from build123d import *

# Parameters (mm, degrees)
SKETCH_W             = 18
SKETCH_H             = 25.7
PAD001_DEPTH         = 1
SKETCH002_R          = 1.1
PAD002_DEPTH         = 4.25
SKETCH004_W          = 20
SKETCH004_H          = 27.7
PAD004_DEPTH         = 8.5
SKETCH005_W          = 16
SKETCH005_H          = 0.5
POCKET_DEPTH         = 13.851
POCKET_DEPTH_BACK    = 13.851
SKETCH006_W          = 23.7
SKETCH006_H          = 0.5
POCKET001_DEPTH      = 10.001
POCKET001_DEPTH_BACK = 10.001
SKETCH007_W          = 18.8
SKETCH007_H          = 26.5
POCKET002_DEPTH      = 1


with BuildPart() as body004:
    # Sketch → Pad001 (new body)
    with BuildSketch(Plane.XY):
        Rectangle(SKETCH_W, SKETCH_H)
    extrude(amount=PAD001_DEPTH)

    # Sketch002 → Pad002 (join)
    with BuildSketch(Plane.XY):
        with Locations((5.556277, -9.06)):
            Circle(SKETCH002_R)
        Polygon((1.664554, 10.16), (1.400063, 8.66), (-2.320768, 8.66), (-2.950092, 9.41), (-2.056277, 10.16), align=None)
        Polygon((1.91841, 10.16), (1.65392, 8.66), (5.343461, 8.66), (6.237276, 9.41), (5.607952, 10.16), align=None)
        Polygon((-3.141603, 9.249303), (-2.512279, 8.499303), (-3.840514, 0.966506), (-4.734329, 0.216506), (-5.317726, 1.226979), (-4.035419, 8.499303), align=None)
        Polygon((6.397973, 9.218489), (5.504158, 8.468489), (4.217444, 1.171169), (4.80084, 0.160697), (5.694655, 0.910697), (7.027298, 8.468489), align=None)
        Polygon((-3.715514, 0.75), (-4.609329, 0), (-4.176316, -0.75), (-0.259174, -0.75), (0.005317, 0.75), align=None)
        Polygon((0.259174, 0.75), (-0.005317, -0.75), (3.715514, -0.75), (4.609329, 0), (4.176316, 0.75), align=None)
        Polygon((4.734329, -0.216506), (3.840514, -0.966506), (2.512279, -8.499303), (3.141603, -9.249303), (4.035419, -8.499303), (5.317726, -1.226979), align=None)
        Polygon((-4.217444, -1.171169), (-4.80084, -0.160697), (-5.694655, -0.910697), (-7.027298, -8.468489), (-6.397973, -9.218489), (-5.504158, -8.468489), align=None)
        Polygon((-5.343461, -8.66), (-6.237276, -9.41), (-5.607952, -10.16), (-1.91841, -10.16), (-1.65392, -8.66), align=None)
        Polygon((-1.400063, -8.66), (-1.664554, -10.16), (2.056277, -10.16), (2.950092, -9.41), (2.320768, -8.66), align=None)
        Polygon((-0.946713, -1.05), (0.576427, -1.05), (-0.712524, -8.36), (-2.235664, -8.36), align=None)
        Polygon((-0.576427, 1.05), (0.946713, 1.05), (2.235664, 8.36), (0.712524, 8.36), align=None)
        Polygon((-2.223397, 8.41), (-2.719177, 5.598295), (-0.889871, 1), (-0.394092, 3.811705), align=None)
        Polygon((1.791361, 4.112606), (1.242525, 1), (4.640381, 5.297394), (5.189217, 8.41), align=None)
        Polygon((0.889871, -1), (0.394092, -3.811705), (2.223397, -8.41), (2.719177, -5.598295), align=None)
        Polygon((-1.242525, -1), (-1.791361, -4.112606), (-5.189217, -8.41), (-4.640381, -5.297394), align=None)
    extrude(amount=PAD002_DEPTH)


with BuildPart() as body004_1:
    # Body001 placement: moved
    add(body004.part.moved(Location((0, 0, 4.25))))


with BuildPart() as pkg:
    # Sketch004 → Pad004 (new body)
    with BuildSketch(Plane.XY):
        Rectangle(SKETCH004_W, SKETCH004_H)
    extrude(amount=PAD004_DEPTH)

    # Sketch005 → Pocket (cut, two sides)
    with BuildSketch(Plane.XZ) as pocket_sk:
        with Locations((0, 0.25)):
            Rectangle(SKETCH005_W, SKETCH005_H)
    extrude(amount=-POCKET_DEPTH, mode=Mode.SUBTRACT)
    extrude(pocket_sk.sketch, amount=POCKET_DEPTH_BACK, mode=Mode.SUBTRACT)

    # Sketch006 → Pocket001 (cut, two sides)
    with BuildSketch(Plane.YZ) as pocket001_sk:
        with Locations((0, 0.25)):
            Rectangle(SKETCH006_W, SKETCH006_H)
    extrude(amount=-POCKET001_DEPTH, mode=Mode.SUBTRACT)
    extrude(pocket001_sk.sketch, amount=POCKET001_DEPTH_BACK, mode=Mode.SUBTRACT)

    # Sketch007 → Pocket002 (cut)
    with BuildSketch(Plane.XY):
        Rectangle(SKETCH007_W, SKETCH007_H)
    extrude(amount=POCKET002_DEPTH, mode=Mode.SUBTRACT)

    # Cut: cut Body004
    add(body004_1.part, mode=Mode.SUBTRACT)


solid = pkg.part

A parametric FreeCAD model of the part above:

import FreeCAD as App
import Part
import Sketcher
from FreeCAD import Vector
Q = App.Units.Quantity

doc = App.newDocument("Part")
body = doc.addObject("PartDesign::Body", "Body")

sketch1 = doc.addObject("Sketcher::SketchObject", "Sketch")
body.addObject(sketch1)
sketch1.AttachmentSupport = (doc.XY_Plane, [""])
sketch1.MapMode = "FlatFace"
sketch1.addGeometry(Part.LineSegment(Vector(-9, 13, 0), Vector(-9, -13, 0)), False)
sketch1.addGeometry(Part.LineSegment(Vector(-9, -13, 0), Vector(9, -13, 0)), False)
sketch1.addGeometry(Part.LineSegment(Vector(9, -13, 0), Vector(9, 13, 0)), False)
sketch1.addGeometry(Part.LineSegment(Vector(9, 13, 0), Vector(-9, 13, 0)), False)
sketch1.addConstraint(Sketcher.Constraint("Coincident", 0, 2, 1, 1))
sketch1.addConstraint(Sketcher.Constraint("Coincident", 1, 2, 2, 1))
sketch1.addConstraint(Sketcher.Constraint("Coincident", 2, 2, 3, 1))
sketch1.addConstraint(Sketcher.Constraint("Coincident", 3, 2, 0, 1))
sketch1.addConstraint(Sketcher.Constraint("Vertical", 0))
sketch1.addConstraint(Sketcher.Constraint("Horizontal", 1))
sketch1.addConstraint(Sketcher.Constraint("Vertical", 2))
sketch1.addConstraint(Sketcher.Constraint("Horizontal", 3))
sketch1.addConstraint(Sketcher.Constraint("Symmetric", 0, 2, 2, 2, -1, 1))
sketch1.addConstraint(Sketcher.Constraint("DistanceX", 1, 1, 1, 2, Q("18 mm")))
sketch1.addConstraint(Sketcher.Constraint("DistanceY", 0, 2, 0, 1, Q("25.7 mm")))
pad1 = doc.addObject("PartDesign::Pad", "Pad")
body.addObject(pad1)
pad1.Profile = sketch1
pad1.Length = 1

sketch2 = doc.addObject("Sketcher::SketchObject", "Sketch001")
body.addObject(sketch2)
sketch2.AttachmentSupport = (doc.XY_Plane, [""])
sketch2.MapMode = "FlatFace"
sketch2.addGeometry(Part.Circle(Vector(5.6, -9.1, 0), Vector(0, 0, 1), 1.1), False)
sketch2.addGeometry(Part.LineSegment(Vector(1.4, 8.7, 0), Vector(1.7, 10.2, 0)), False)
sketch2.addGeometry(Part.LineSegment(Vector(1.7, 10.2, 0), Vector(-2.1, 10.2, 0)), False)
sketch2.addGeometry(Part.LineSegment(Vector(-2.1, 10.2, 0), Vector(-3, 9.4, 0)), False)
sketch2.addGeometry(Part.LineSegment(Vector(-3, 9.4, 0), Vector(-2.3, 8.7, 0)), False)
sketch2.addGeometry(Part.LineSegment(Vector(-2.3, 8.7, 0), Vector(1.4, 8.7, 0)), False)
sketch2.addGeometry(Part.LineSegment(Vector(1.9, 10.2, 0), Vector(1.7, 8.7, 0)), False)
sketch2.addGeometry(Part.LineSegment(Vector(1.7, 8.7, 0), Vector(5.3, 8.7, 0)), False)
sketch2.addGeometry(Part.LineSegment(Vector(5.3, 8.7, 0), Vector(6.2, 9.4, 0)), False)
sketch2.addGeometry(Part.LineSegment(Vector(6.2, 9.4, 0), Vector(5.6, 10.2, 0)), False)
sketch2.addGeometry(Part.LineSegment(Vector(5.6, 10.2, 0), Vector(1.9, 10.2, 0)), False)
sketch2.addGeometry(Part.LineSegment(Vector(-2.5, 8.5, 0), Vector(-3.1, 9.2, 0)), False)
sketch2.addGeometry(Part.LineSegment(Vector(-3.1, 9.2, 0), Vector(-4, 8.5, 0)), False)
sketch2.addGeometry(Part.LineSegment(Vector(-4, 8.5, 0), Vector(-5.3, 1.2, 0)), False)
sketch2.addGeometry(Part.LineSegment(Vector(-5.3, 1.2, 0), Vector(-4.7, 0.2, 0)), False)
sketch2.addGeometry(Part.LineSegment(Vector(-4.7, 0.2, 0), Vector(-3.8, 1, 0)), False)
sketch2.addGeometry(Part.LineSegment(Vector(-3.8, 1, 0), Vector(-2.5, 8.5, 0)), False)
sketch2.addGeometry(Part.LineSegment(Vector(6.4, 9.2, 0), Vector(5.5, 8.5, 0)), False)
sketch2.addGeometry(Part.LineSegment(Vector(5.5, 8.5, 0), Vector(4.2, 1.2, 0)), False)
sketch2.addGeometry(Part.LineSegment(Vector(4.2, 1.2, 0), Vector(4.8, 0.2, 0)), False)
sketch2.addGeometry(Part.LineSegment(Vector(4.8, 0.2, 0), Vector(5.7, 0.9, 0)), False)
sketch2.addGeometry(Part.LineSegment(Vector(5.7, 0.9, 0), Vector(7, 8.5, 0)), False)
sketch2.addGeometry(Part.LineSegment(Vector(7, 8.5, 0), Vector(6.4, 9.2, 0)), False)
sketch2.addGeometry(Part.LineSegment(Vector(-3.7, 0.8, 0), Vector(-4.6, 0, 0)), False)
sketch2.addGeometry(Part.LineSegment(Vector(-4.6, 0, 0), Vector(-4.2, -0.8, 0)), False)
sketch2.addGeometry(Part.LineSegment(Vector(-4.2, -0.8, 0), Vector(-0.3, -0.8, 0)), False)
sketch2.addGeometry(Part.LineSegment(Vector(-0.3, -0.8, 0), Vector(0, 0.8, 0)), False)
sketch2.addGeometry(Part.LineSegment(Vector(0, 0.8, 0), Vector(-3.7, 0.8, 0)), False)
sketch2.addGeometry(Part.LineSegment(Vector(0.3, 0.8, 0), Vector(0, -0.8, 0)), False)
sketch2.addGeometry(Part.LineSegment(Vector(0, -0.8, 0), Vector(3.7, -0.8, 0)), False)
sketch2.addGeometry(Part.LineSegment(Vector(3.7, -0.8, 0), Vector(4.6, 0, 0)), False)
sketch2.addGeometry(Part.LineSegment(Vector(4.6, 0, 0), Vector(4.2, 0.8, 0)), False)
sketch2.addGeometry(Part.LineSegment(Vector(4.2, 0.8, 0), Vector(0.3, 0.8, 0)), False)
sketch2.addGeometry(Part.LineSegment(Vector(4.7, -0.2, 0), Vector(3.8, -1, 0)), False)
sketch2.addGeometry(Part.LineSegment(Vector(3.8, -1, 0), Vector(2.5, -8.5, 0)), False)
sketch2.addGeometry(Part.LineSegment(Vector(2.5, -8.5, 0), Vector(3.1, -9.2, 0)), False)
sketch2.addGeometry(Part.LineSegment(Vector(3.1, -9.2, 0), Vector(4, -8.5, 0)), False)
sketch2.addGeometry(Part.LineSegment(Vector(4, -8.5, 0), Vector(5.3, -1.2, 0)), False)
sketch2.addGeometry(Part.LineSegment(Vector(5.3, -1.2, 0), Vector(4.7, -0.2, 0)), False)
sketch2.addGeometry(Part.LineSegment(Vector(-4.2, -1.2, 0), Vector(-4.8, -0.2, 0)), False)
sketch2.addGeometry(Part.LineSegment(Vector(-4.8, -0.2, 0), Vector(-5.7, -0.9, 0)), False)
sketch2.addGeometry(Part.LineSegment(Vector(-5.7, -0.9, 0), Vector(-7, -8.5, 0)), False)
sketch2.addGeometry(Part.LineSegment(Vector(-7, -8.5, 0), Vector(-6.4, -9.2, 0)), False)
sketch2.addGeometry(Part.LineSegment(Vector(-6.4, -9.2, 0), Vector(-5.5, -8.5, 0)), False)
sketch2.addGeometry(Part.LineSegment(Vector(-5.5, -8.5, 0), Vector(-4.2, -1.2, 0)), False)
sketch2.addGeometry(Part.LineSegment(Vector(-5.3, -8.7, 0), Vector(-6.2, -9.4, 0)), False)
sketch2.addGeometry(Part.LineSegment(Vector(-6.2, -9.4, 0), Vector(-5.6, -10.2, 0)), False)
sketch2.addGeometry(Part.LineSegment(Vector(-5.6, -10.2, 0), Vector(-1.9, -10.2, 0)), False)
sketch2.addGeometry(Part.LineSegment(Vector(-1.9, -10.2, 0), Vector(-1.7, -8.7, 0)), False)
sketch2.addGeometry(Part.LineSegment(Vector(-1.7, -8.7, 0), Vector(-5.3, -8.7, 0)), False)
sketch2.addGeometry(Part.LineSegment(Vector(-1.4, -8.7, 0), Vector(-1.7, -10.2, 0)), False)
sketch2.addGeometry(Part.LineSegment(Vector(-1.7, -10.2, 0), Vector(2.1, -10.2, 0)), False)
sketch2.addGeometry(Part.LineSegment(Vector(2.1, -10.2, 0), Vector(3, -9.4, 0)), False)
sketch2.addGeometry(Part.LineSegment(Vector(3, -9.4, 0), Vector(2.3, -8.7, 0)), False)
sketch2.addGeometry(Part.LineSegment(Vector(2.3, -8.7, 0), Vector(-1.4, -8.7, 0)), False)
sketch2.addGeometry(Part.LineSegment(Vector(0.6, -1.1, 0), Vector(-0.9, -1.1, 0)), False)
sketch2.addGeometry(Part.LineSegment(Vector(-0.9, -1.1, 0), Vector(-2.2, -8.4, 0)), False)
sketch2.addGeometry(Part.LineSegment(Vector(-2.2, -8.4, 0), Vector(-0.7, -8.4, 0)), False)
sketch2.addGeometry(Part.LineSegment(Vector(-0.7, -8.4, 0), Vector(0.6, -1.1, 0)), False)
sketch2.addGeometry(Part.LineSegment(Vector(-0.6, 1.1, 0), Vector(0.9, 1.1, 0)), False)
sketch2.addGeometry(Part.LineSegment(Vector(0.9, 1.1, 0), Vector(2.2, 8.4, 0)), False)
sketch2.addGeometry(Part.LineSegment(Vector(2.2, 8.4, 0), Vector(0.7, 8.4, 0)), False)
sketch2.addGeometry(Part.LineSegment(Vector(0.7, 8.4, 0), Vector(-0.6, 1.1, 0)), False)
sketch2.addGeometry(Part.LineSegment(Vector(-2.2, 8.4, 0), Vector(-2.7, 5.6, 0)), False)
sketch2.addGeometry(Part.LineSegment(Vector(-2.7, 5.6, 0), Vector(-0.9, 1, 0)), False)
sketch2.addGeometry(Part.LineSegment(Vector(-0.9, 1, 0), Vector(-0.4, 3.8, 0)), False)
sketch2.addGeometry(Part.LineSegment(Vector(-0.4, 3.8, 0), Vector(-2.2, 8.4, 0)), False)
sketch2.addGeometry(Part.LineSegment(Vector(1.8, 4.1, 0), Vector(1.2, 1, 0)), False)
sketch2.addGeometry(Part.LineSegment(Vector(1.2, 1, 0), Vector(4.6, 5.3, 0)), False)
sketch2.addGeometry(Part.LineSegment(Vector(4.6, 5.3, 0), Vector(5.2, 8.4, 0)), False)
sketch2.addGeometry(Part.LineSegment(Vector(5.2, 8.4, 0), Vector(1.8, 4.1, 0)), False)
sketch2.addGeometry(Part.LineSegment(Vector(0.9, -1, 0), Vector(0.4, -3.8, 0)), False)
sketch2.addGeometry(Part.LineSegment(Vector(0.4, -3.8, 0), Vector(2.2, -8.4, 0)), False)
sketch2.addGeometry(Part.LineSegment(Vector(2.2, -8.4, 0), Vector(2.7, -5.6, 0)), False)
sketch2.addGeometry(Part.LineSegment(Vector(2.7, -5.6, 0), Vector(0.9, -1, 0)), False)
sketch2.addGeometry(Part.LineSegment(Vector(-1.8, -4.1, 0), Vector(-1.2, -1, 0)), False)
sketch2.addGeometry(Part.LineSegment(Vector(-1.2, -1, 0), Vector(-4.6, -5.3, 0)), False)
sketch2.addGeometry(Part.LineSegment(Vector(-4.6, -5.3, 0), Vector(-5.2, -8.4, 0)), False)
sketch2.addGeometry(Part.LineSegment(Vector(-5.2, -8.4, 0), Vector(-1.8, -4.1, 0)), False)
sketch2.addConstraint(Sketcher.Constraint("Coincident", 1, 2, 2, 1))
sketch2.addConstraint(Sketcher.Constraint("Coincident", 2, 2, 3, 1))
sketch2.addConstraint(Sketcher.Constraint("Coincident", 3, 2, 4, 1))
sketch2.addConstraint(Sketcher.Constraint("Coincident", 4, 2, 5, 1))
sketch2.addConstraint(Sketcher.Constraint("Coincident", 5, 2, 1, 1))
sketch2.addConstraint(Sketcher.Constraint("Coincident", 6, 2, 7, 1))
sketch2.addConstraint(Sketcher.Constraint("Coincident", 7, 2, 8, 1))
sketch2.addConstraint(Sketcher.Constraint("Coincident", 8, 2, 9, 1))
sketch2.addConstraint(Sketcher.Constraint("Coincident", 9, 2, 10, 1))
sketch2.addConstraint(Sketcher.Constraint("Coincident", 10, 2, 6, 1))
sketch2.addConstraint(Sketcher.Constraint("Coincident", 11, 2, 12, 1))
sketch2.addConstraint(Sketcher.Constraint("Coincident", 12, 2, 13, 1))
sketch2.addConstraint(Sketcher.Constraint("Coincident", 13, 2, 14, 1))
sketch2.addConstraint(Sketcher.Constraint("Coincident", 14, 2, 15, 1))
sketch2.addConstraint(Sketcher.Constraint("Coincident", 15, 2, 16, 1))
sketch2.addConstraint(Sketcher.Constraint("Coincident", 16, 2, 11, 1))
sketch2.addConstraint(Sketcher.Constraint("Coincident", 17, 2, 18, 1))
sketch2.addConstraint(Sketcher.Constraint("Coincident", 18, 2, 19, 1))
sketch2.addConstraint(Sketcher.Constraint("Coincident", 19, 2, 20, 1))
sketch2.addConstraint(Sketcher.Constraint("Coincident", 20, 2, 21, 1))
sketch2.addConstraint(Sketcher.Constraint("Coincident", 21, 2, 22, 1))
sketch2.addConstraint(Sketcher.Constraint("Coincident", 22, 2, 17, 1))
sketch2.addConstraint(Sketcher.Constraint("Coincident", 23, 2, 24, 1))
sketch2.addConstraint(Sketcher.Constraint("Coincident", 24, 2, 25, 1))
sketch2.addConstraint(Sketcher.Constraint("Coincident", 25, 2, 26, 1))
sketch2.addConstraint(Sketcher.Constraint("Coincident", 26, 2, 27, 1))
sketch2.addConstraint(Sketcher.Constraint("Coincident", 27, 2, 23, 1))
sketch2.addConstraint(Sketcher.Constraint("Coincident", 28, 2, 29, 1))
sketch2.addConstraint(Sketcher.Constraint("Coincident", 29, 2, 30, 1))
sketch2.addConstraint(Sketcher.Constraint("Coincident", 30, 2, 31, 1))
sketch2.addConstraint(Sketcher.Constraint("Coincident", 31, 2, 32, 1))
sketch2.addConstraint(Sketcher.Constraint("Coincident", 32, 2, 28, 1))
sketch2.addConstraint(Sketcher.Constraint("Coincident", 33, 2, 34, 1))
sketch2.addConstraint(Sketcher.Constraint("Coincident", 34, 2, 35, 1))
sketch2.addConstraint(Sketcher.Constraint("Coincident", 35, 2, 36, 1))
sketch2.addConstraint(Sketcher.Constraint("Coincident", 36, 2, 37, 1))
sketch2.addConstraint(Sketcher.Constraint("Coincident", 37, 2, 38, 1))
sketch2.addConstraint(Sketcher.Constraint("Coincident", 38, 2, 33, 1))
sketch2.addConstraint(Sketcher.Constraint("Coincident", 39, 2, 40, 1))
sketch2.addConstraint(Sketcher.Constraint("Coincident", 40, 2, 41, 1))
sketch2.addConstraint(Sketcher.Constraint("Coincident", 41, 2, 42, 1))
sketch2.addConstraint(Sketcher.Constraint("Coincident", 42, 2, 43, 1))
sketch2.addConstraint(Sketcher.Constraint("Coincident", 43, 2, 44, 1))
sketch2.addConstraint(Sketcher.Constraint("Coincident", 44, 2, 39, 1))
sketch2.addConstraint(Sketcher.Constraint("Coincident", 45, 2, 46, 1))
sketch2.addConstraint(Sketcher.Constraint("Coincident", 46, 2, 47, 1))
sketch2.addConstraint(Sketcher.Constraint("Coincident", 47, 2, 48, 1))
sketch2.addConstraint(Sketcher.Constraint("Coincident", 48, 2, 49, 1))
sketch2.addConstraint(Sketcher.Constraint("Coincident", 49, 2, 45, 1))
sketch2.addConstraint(Sketcher.Constraint("Coincident", 50, 2, 51, 1))
sketch2.addConstraint(Sketcher.Constraint("Coincident", 51, 2, 52, 1))
sketch2.addConstraint(Sketcher.Constraint("Coincident", 52, 2, 53, 1))
sketch2.addConstraint(Sketcher.Constraint("Coincident", 53, 2, 54, 1))
sketch2.addConstraint(Sketcher.Constraint("Coincident", 54, 2, 50, 1))
sketch2.addConstraint(Sketcher.Constraint("Coincident", 55, 2, 56, 1))
sketch2.addConstraint(Sketcher.Constraint("Coincident", 56, 2, 57, 1))
sketch2.addConstraint(Sketcher.Constraint("Coincident", 57, 2, 58, 1))
sketch2.addConstraint(Sketcher.Constraint("Coincident", 58, 2, 55, 1))
sketch2.addConstraint(Sketcher.Constraint("Coincident", 59, 2, 60, 1))
sketch2.addConstraint(Sketcher.Constraint("Coincident", 60, 2, 61, 1))
sketch2.addConstraint(Sketcher.Constraint("Coincident", 61, 2, 62, 1))
sketch2.addConstraint(Sketcher.Constraint("Coincident", 62, 2, 59, 1))
sketch2.addConstraint(Sketcher.Constraint("Coincident", 63, 2, 64, 1))
sketch2.addConstraint(Sketcher.Constraint("Coincident", 64, 2, 65, 1))
sketch2.addConstraint(Sketcher.Constraint("Coincident", 65, 2, 66, 1))
sketch2.addConstraint(Sketcher.Constraint("Coincident", 66, 2, 63, 1))
sketch2.addConstraint(Sketcher.Constraint("Coincident", 67, 2, 68, 1))
sketch2.addConstraint(Sketcher.Constraint("Coincident", 68, 2, 69, 1))
sketch2.addConstraint(Sketcher.Constraint("Coincident", 69, 2, 70, 1))
sketch2.addConstraint(Sketcher.Constraint("Coincident", 70, 2, 67, 1))
sketch2.addConstraint(Sketcher.Constraint("Coincident", 71, 2, 72, 1))
sketch2.addConstraint(Sketcher.Constraint("Coincident", 72, 2, 73, 1))
sketch2.addConstraint(Sketcher.Constraint("Coincident", 73, 2, 74, 1))
sketch2.addConstraint(Sketcher.Constraint("Coincident", 74, 2, 71, 1))
sketch2.addConstraint(Sketcher.Constraint("Coincident", 75, 2, 76, 1))
sketch2.addConstraint(Sketcher.Constraint("Coincident", 76, 2, 77, 1))
sketch2.addConstraint(Sketcher.Constraint("Coincident", 77, 2, 78, 1))
sketch2.addConstraint(Sketcher.Constraint("Coincident", 78, 2, 75, 1))
sketch2.addConstraint(Sketcher.Constraint("Horizontal", 2))
sketch2.addConstraint(Sketcher.Constraint("Horizontal", 5))
sketch2.addConstraint(Sketcher.Constraint("Horizontal", 7))
sketch2.addConstraint(Sketcher.Constraint("Horizontal", 10))
sketch2.addConstraint(Sketcher.Constraint("Horizontal", 25))
sketch2.addConstraint(Sketcher.Constraint("Horizontal", 27))
sketch2.addConstraint(Sketcher.Constraint("Horizontal", 29))
sketch2.addConstraint(Sketcher.Constraint("Horizontal", 32))
sketch2.addConstraint(Sketcher.Constraint("Horizontal", 47))
sketch2.addConstraint(Sketcher.Constraint("Horizontal", 49))
sketch2.addConstraint(Sketcher.Constraint("Horizontal", 51))
sketch2.addConstraint(Sketcher.Constraint("Horizontal", 54))
sketch2.addConstraint(Sketcher.Constraint("Horizontal", 55))
sketch2.addConstraint(Sketcher.Constraint("Horizontal", 57))
sketch2.addConstraint(Sketcher.Constraint("Horizontal", 59))
sketch2.addConstraint(Sketcher.Constraint("Horizontal", 61))
sketch2.addConstraint(Sketcher.Constraint("Symmetric", 26, 2, 28, 2, -1, 1))
sketch2.addConstraint(Sketcher.Constraint("Symmetric", 23, 2, 30, 2, -1, 1))
sketch2.addConstraint(Sketcher.Constraint("Symmetric", 24, 2, 31, 2, -1, 1))
sketch2.addConstraint(Sketcher.Constraint("Symmetric", 15, 2, 33, 2, -1, 1))
sketch2.addConstraint(Sketcher.Constraint("Symmetric", 16, 2, 34, 2, -1, 1))
sketch2.addConstraint(Sketcher.Constraint("Symmetric", 11, 2, 35, 2, -1, 1))
sketch2.addConstraint(Sketcher.Constraint("Symmetric", 12, 2, 36, 2, -1, 1))
sketch2.addConstraint(Sketcher.Constraint("Symmetric", 13, 2, 37, 2, -1, 1))
sketch2.addConstraint(Sketcher.Constraint("Symmetric", 14, 2, 38, 2, -1, 1))
sketch2.addConstraint(Sketcher.Constraint("Symmetric", 19, 2, 39, 2, -1, 1))
sketch2.addConstraint(Sketcher.Constraint("Symmetric", 20, 2, 40, 2, -1, 1))
sketch2.addConstraint(Sketcher.Constraint("Symmetric", 21, 2, 41, 2, -1, 1))
sketch2.addConstraint(Sketcher.Constraint("Symmetric", 22, 2, 42, 2, -1, 1))
sketch2.addConstraint(Sketcher.Constraint("Symmetric", 17, 2, 43, 2, -1, 1))
sketch2.addConstraint(Sketcher.Constraint("Symmetric", 18, 2, 44, 2, -1, 1))
sketch2.addConstraint(Sketcher.Constraint("Symmetric", 8, 2, 45, 2, -1, 1))
sketch2.addConstraint(Sketcher.Constraint("Symmetric", 9, 2, 46, 2, -1, 1))
sketch2.addConstraint(Sketcher.Constraint("Symmetric", 6, 2, 48, 2, -1, 1))
sketch2.addConstraint(Sketcher.Constraint("Symmetric", 1, 2, 50, 2, -1, 1))
sketch2.addConstraint(Sketcher.Constraint("Symmetric", 3, 2, 52, 2, -1, 1))
sketch2.addConstraint(Sketcher.Constraint("Symmetric", 4, 2, 53, 2, -1, 1))
sketch2.addConstraint(Sketcher.Constraint("Symmetric", 55, 2, 59, 2, -1, 1))
sketch2.addConstraint(Sketcher.Constraint("Symmetric", 56, 2, 60, 2, -1, 1))
sketch2.addConstraint(Sketcher.Constraint("Symmetric", 65, 2, 71, 2, -1, 1))
sketch2.addConstraint(Sketcher.Constraint("Symmetric", 66, 2, 72, 2, -1, 1))
sketch2.addConstraint(Sketcher.Constraint("Symmetric", 63, 2, 73, 2, -1, 1))
sketch2.addConstraint(Sketcher.Constraint("Symmetric", 64, 2, 74, 2, -1, 1))
sketch2.addConstraint(Sketcher.Constraint("Symmetric", 67, 2, 75, 2, -1, 1))
sketch2.addConstraint(Sketcher.Constraint("Symmetric", 68, 2, 76, 2, -1, 1))
sketch2.addConstraint(Sketcher.Constraint("Symmetric", 69, 2, 77, 2, -1, 1))
sketch2.addConstraint(Sketcher.Constraint("Symmetric", 70, 2, 78, 2, -1, 1))
sketch2.addConstraint(Sketcher.Constraint("PointOnObject", 23, 2, -1))
sketch2.addConstraint(Sketcher.Constraint("Perpendicular", 3, 4))
sketch2.addConstraint(Sketcher.Constraint("Parallel", 1, 6))
sketch2.addConstraint(Sketcher.Constraint("Perpendicular", 4, 8))
sketch2.addConstraint(Sketcher.Constraint("Perpendicular", 8, 9))
sketch2.addConstraint(Sketcher.Constraint("Parallel", 9, 11))
sketch2.addConstraint(Sketcher.Constraint("Perpendicular", 11, 12))
sketch2.addConstraint(Sketcher.Constraint("Parallel", 6, 13))
sketch2.addConstraint(Sketcher.Constraint("Parallel", 12, 15))
sketch2.addConstraint(Sketcher.Constraint("Parallel", 13, 16))
sketch2.addConstraint(Sketcher.Constraint("Parallel", 15, 17))
sketch2.addConstraint(Sketcher.Constraint("Parallel", 16, 18))
sketch2.addConstraint(Sketcher.Constraint("Parallel", 14, 19))
sketch2.addConstraint(Sketcher.Constraint("Parallel", 17, 20))
sketch2.addConstraint(Sketcher.Constraint("Parallel", 18, 21))
sketch2.addConstraint(Sketcher.Constraint("Perpendicular", 20, 22))
sketch2.addConstraint(Sketcher.Constraint("Perpendicular", 22, 23))
sketch2.addConstraint(Sketcher.Constraint("Parallel", 19, 24))
sketch2.addConstraint(Sketcher.Constraint("Parallel", 21, 26))
sketch2.addConstraint(Sketcher.Constraint("Parallel", 26, 28))
sketch2.addConstraint(Sketcher.Constraint("Parallel", 23, 30))
sketch2.addConstraint(Sketcher.Constraint("Parallel", 43, 45))
sketch2.addConstraint(Sketcher.Constraint("Parallel", 44, 48))
sketch2.addConstraint(Sketcher.Constraint("Parallel", 48, 50))
sketch2.addConstraint(Sketcher.Constraint("Perpendicular", 46, 52))
sketch2.addConstraint(Sketcher.Constraint("Parallel", 50, 56))
sketch2.addConstraint(Sketcher.Constraint("Parallel", 56, 58))
sketch2.addConstraint(Sketcher.Constraint("Parallel", 60, 62))
sketch2.addConstraint(Sketcher.Constraint("Parallel", 62, 63))
sketch2.addConstraint(Sketcher.Constraint("Parallel", 63, 65))
sketch2.addConstraint(Sketcher.Constraint("Parallel", 64, 66))
sketch2.addConstraint(Sketcher.Constraint("Parallel", 65, 67))
sketch2.addConstraint(Sketcher.Constraint("Parallel", 67, 69))
sketch2.addConstraint(Sketcher.Constraint("Parallel", 68, 70))
sketch2.addConstraint(Sketcher.Constraint("Horizontal", 5, 2, 6, 2))
sketch2.addConstraint(Sketcher.Constraint("Horizontal", 3, 2, 8, 2))
sketch2.addConstraint(Sketcher.Constraint("Horizontal", 2, 2, 9, 2))
sketch2.addConstraint(Sketcher.Constraint("Horizontal", 12, 2, 16, 2))
sketch2.addConstraint(Sketcher.Constraint("Horizontal", 17, 2, 21, 2))
sketch2.addConstraint(Sketcher.Constraint("Horizontal", 25, 2, 28, 2))
sketch2.addConstraint(Sketcher.Constraint("Horizontal", 64, 2, 67, 2))
sketch2.addConstraint(Sketcher.Constraint("Horizontal", 66, 2, 69, 2))
sketch2.addConstraint(Sketcher.Constraint("Equal", 2, 5))
sketch2.addConstraint(Sketcher.Constraint("Equal", 7, 10))
sketch2.addConstraint(Sketcher.Constraint("Equal", 5, 27))
sketch2.addConstraint(Sketcher.Constraint("Equal", 57, 59))
sketch2.addConstraint(Sketcher.Constraint("Equal", 9, 11))
sketch2.addConstraint(Sketcher.Constraint("Equal", 12, 14))
sketch2.addConstraint(Sketcher.Constraint("Equal", 14, 15))
sketch2.addConstraint(Sketcher.Constraint("Equal", 15, 17))
sketch2.addConstraint(Sketcher.Constraint("Equal", 17, 19))
sketch2.addConstraint(Sketcher.Constraint("Equal", 20, 23))
sketch2.addConstraint(Sketcher.Constraint("Diameter", 0, Q("2.2 mm")))
sketch2.addConstraint(Sketcher.Constraint("Angle", 1, Q("79.99998 deg")))
sketch2.addConstraint(Sketcher.Constraint("DistanceY", -1, 1, 64, 2, Q("1 mm")))
sketch2.addConstraint(Sketcher.Constraint("DistanceY", 0, 3, -1, 1, Q("9.06 mm")))
sketch2.addConstraint(Sketcher.Constraint("DistanceY", -1, 1, 1, 2, Q("10.16 mm")))
sketch2.addConstraint(Sketcher.Constraint("DistanceY", -1, 1, 3, 2, Q("9.41 mm")))
sketch2.addConstraint(Sketcher.Constraint("DistanceY", 55, 2, -1, 1, Q("1.05 mm")))
sketch2.addConstraint(Sketcher.Constraint("DistanceY", 56, 2, -1, 1, Q("8.36 mm")))
sketch2.addConstraint(Sketcher.Constraint("DistanceY", -1, 1, 66, 2, Q("8.41 mm")))
sketch2.addConstraint(Sketcher.Constraint("DistanceX", 2, 2, 2, 1, Q("3.720831 mm")))
sketch2.addConstraint(Sketcher.Constraint("DistanceX", 7, 1, 7, 2, Q("3.689541 mm")))
sketch2.addConstraint(Sketcher.Constraint("DistanceX", 55, 2, 55, 1, Q("1.52314 mm")))
sketch2.addConstraint(Sketcher.Constraint("Distance", 13, Q("7.384511 mm")))
sketch2.addConstraint(Sketcher.Constraint("Distance", 63, Q("2.85508 mm")))
sketch2.addConstraint(Sketcher.Constraint("DistanceX", 4, 2, -1, 1, Q("2.320768 mm")))
sketch2.addConstraint(Sketcher.Constraint("DistanceX", -1, 1, 6, 2, Q("1.65392 mm")))
sketch2.addConstraint(Sketcher.Constraint("DistanceX", 12, 2, -1, 1, Q("4.035419 mm")))
sketch2.addConstraint(Sketcher.Constraint("DistanceY", -1, 1, 13, 2, Q("1.226979 mm")))
sketch2.addConstraint(Sketcher.Constraint("DistanceX", -1, 1, 17, 2, Q("5.504158 mm")))
sketch2.addConstraint(Sketcher.Constraint("DistanceY", -1, 1, 17, 2, Q("8.468489 mm")))
sketch2.addConstraint(Sketcher.Constraint("DistanceY", -1, 1, 18, 2, Q("1.171169 mm")))
sketch2.addConstraint(Sketcher.Constraint("DistanceX", 23, 2, -1, 1, Q("4.609329 mm")))
sketch2.addConstraint(Sketcher.Constraint("DistanceX", 64, 2, -1, 1, Q("0.889871 mm")))
sketch2.addConstraint(Sketcher.Constraint("DistanceX", -1, 1, 68, 2, Q("4.640381 mm")))
sketch2.addConstraint(Sketcher.Constraint("DistanceX", -1, 1, 70, 2, Q("1.791361 mm")))
sketch2.addConstraint(Sketcher.Constraint("Distance", 64, Q("4.948806 mm")))
sketch2.addConstraint(Sketcher.Constraint("Distance", 67, Q("3.160623 mm")))
sketch2.addConstraint(Sketcher.Constraint("DistanceX", -1, 1, 0, 3, Q("5.556277 mm")))
sketch2.addConstraint(Sketcher.Constraint("DistanceX", 55, 2, -1, 1, Q("0.946713 mm")))
pad2 = doc.addObject("PartDesign::Pad", "Pad001")
body.addObject(pad2)
pad2.Profile = sketch2
pad2.Length = 4.25
body2 = doc.addObject("PartDesign::Body", "Body001")
doc.recompute()

body.Placement = App.Placement(Vector(0, 0, 4.25), App.Rotation(Vector(0, 0, 1), 0))
boolean = doc.addObject("PartDesign::Boolean", "Boolean")
body2.addObject(boolean)
boolean.Type = "Fuse"
boolean.addObjects([body])
body3 = doc.addObject("PartDesign::Body", "Body002")

sketch3 = doc.addObject("Sketcher::SketchObject", "Sketch002")
body3.addObject(sketch3)
sketch3.AttachmentSupport = (doc.getObject("XY_Plane002"), [""])
sketch3.MapMode = "FlatFace"
sketch3.addGeometry(Part.LineSegment(Vector(-10, 14, 0), Vector(-10, -14, 0)), False)
sketch3.addGeometry(Part.LineSegment(Vector(-10, -14, 0), Vector(10, -14, 0)), False)
sketch3.addGeometry(Part.LineSegment(Vector(10, -14, 0), Vector(10, 14, 0)), False)
sketch3.addGeometry(Part.LineSegment(Vector(10, 14, 0), Vector(-10, 14, 0)), False)
sketch3.addConstraint(Sketcher.Constraint("Coincident", 0, 2, 1, 1))
sketch3.addConstraint(Sketcher.Constraint("Coincident", 1, 2, 2, 1))
sketch3.addConstraint(Sketcher.Constraint("Coincident", 2, 2, 3, 1))
sketch3.addConstraint(Sketcher.Constraint("Coincident", 3, 2, 0, 1))
sketch3.addConstraint(Sketcher.Constraint("Vertical", 0))
sketch3.addConstraint(Sketcher.Constraint("Horizontal", 1))
sketch3.addConstraint(Sketcher.Constraint("Vertical", 2))
sketch3.addConstraint(Sketcher.Constraint("Horizontal", 3))
sketch3.addConstraint(Sketcher.Constraint("Symmetric", 0, 2, 2, 2, -1, 1))
sketch3.addConstraint(Sketcher.Constraint("DistanceX", 1, 1, 1, 2, Q("20 mm")))
sketch3.addConstraint(Sketcher.Constraint("DistanceY", 0, 2, 0, 1, Q("27.7 mm")))
pad3 = doc.addObject("PartDesign::Pad", "Pad002")
body3.addObject(pad3)
pad3.Profile = sketch3
pad3.Length = 8.5

sketch4 = doc.addObject("Sketcher::SketchObject", "Sketch003")
body3.addObject(sketch4)
sketch4.AttachmentSupport = (doc.getObject("XZ_Plane002"), [""])
sketch4.MapMode = "FlatFace"
sketch4.addGeometry(Part.LineSegment(Vector(-8, 0.5, 0), Vector(-8, 0, 0)), False)
sketch4.addGeometry(Part.LineSegment(Vector(-8, 0, 0), Vector(8, 0, 0)), False)
sketch4.addGeometry(Part.LineSegment(Vector(8, 0, 0), Vector(8, 0.5, 0)), False)
sketch4.addGeometry(Part.LineSegment(Vector(8, 0.5, 0), Vector(-8, 0.5, 0)), False)
sketch4.addConstraint(Sketcher.Constraint("Coincident", 0, 2, 1, 1))
sketch4.addConstraint(Sketcher.Constraint("Coincident", 1, 2, 2, 1))
sketch4.addConstraint(Sketcher.Constraint("Coincident", 2, 2, 3, 1))
sketch4.addConstraint(Sketcher.Constraint("Coincident", 3, 2, 0, 1))
sketch4.addConstraint(Sketcher.Constraint("Vertical", 0))
sketch4.addConstraint(Sketcher.Constraint("Horizontal", 1))
sketch4.addConstraint(Sketcher.Constraint("Vertical", 2))
sketch4.addConstraint(Sketcher.Constraint("Horizontal", 3))
sketch4.addConstraint(Sketcher.Constraint("Symmetric", 0, 2, 1, 2, -1, 1))
sketch4.addConstraint(Sketcher.Constraint("DistanceX", 1, 1, 1, 2, Q("16 mm")))
sketch4.addConstraint(Sketcher.Constraint("DistanceY", 0, 2, 0, 1, Q("0.5 mm")))
pocket1 = doc.addObject("PartDesign::Pocket", "Pocket")
body3.addObject(pocket1)
pocket1.Profile = sketch4
pocket1.Type = "ThroughAll"
pocket1.Midplane = True

sketch5 = doc.addObject("Sketcher::SketchObject", "Sketch004")
body3.addObject(sketch5)
sketch5.AttachmentSupport = (doc.getObject("YZ_Plane002"), [""])
sketch5.MapMode = "FlatFace"
sketch5.addGeometry(Part.LineSegment(Vector(-11.8, 0.5, 0), Vector(-11.8, 0, 0)), False)
sketch5.addGeometry(Part.LineSegment(Vector(-11.8, 0, 0), Vector(11.8, 0, 0)), False)
sketch5.addGeometry(Part.LineSegment(Vector(11.8, 0, 0), Vector(11.8, 0.5, 0)), False)
sketch5.addGeometry(Part.LineSegment(Vector(11.8, 0.5, 0), Vector(-11.8, 0.5, 0)), False)
sketch5.addConstraint(Sketcher.Constraint("Coincident", 0, 2, 1, 1))
sketch5.addConstraint(Sketcher.Constraint("Coincident", 1, 2, 2, 1))
sketch5.addConstraint(Sketcher.Constraint("Coincident", 2, 2, 3, 1))
sketch5.addConstraint(Sketcher.Constraint("Coincident", 3, 2, 0, 1))
sketch5.addConstraint(Sketcher.Constraint("Vertical", 0))
sketch5.addConstraint(Sketcher.Constraint("Horizontal", 1))
sketch5.addConstraint(Sketcher.Constraint("Vertical", 2))
sketch5.addConstraint(Sketcher.Constraint("Horizontal", 3))
sketch5.addConstraint(Sketcher.Constraint("Symmetric", 0, 2, 1, 2, -1, 1))
sketch5.addConstraint(Sketcher.Constraint("DistanceX", 1, 1, 1, 2, Q("23.7 mm")))
sketch5.addConstraint(Sketcher.Constraint("DistanceY", 0, 2, 0, 1, Q("0.5 mm")))
pocket2 = doc.addObject("PartDesign::Pocket", "Pocket001")
body3.addObject(pocket2)
pocket2.Profile = sketch5
pocket2.Type = "ThroughAll"
pocket2.Midplane = True

sketch6 = doc.addObject("Sketcher::SketchObject", "Sketch005")
body3.addObject(sketch6)
sketch6.AttachmentSupport = (doc.getObject("XY_Plane002"), [""])
sketch6.MapMode = "FlatFace"
sketch6.addGeometry(Part.LineSegment(Vector(-9, 13, 0), Vector(-9, -13, 0)), False)
sketch6.addGeometry(Part.LineSegment(Vector(-9, -13, 0), Vector(9, -13, 0)), False)
sketch6.addGeometry(Part.LineSegment(Vector(9, -13, 0), Vector(9, 13, 0)), False)
sketch6.addGeometry(Part.LineSegment(Vector(9, 13, 0), Vector(-9, 13, 0)), False)
sketch6.addConstraint(Sketcher.Constraint("Coincident", 0, 2, 1, 1))
sketch6.addConstraint(Sketcher.Constraint("Coincident", 1, 2, 2, 1))
sketch6.addConstraint(Sketcher.Constraint("Coincident", 2, 2, 3, 1))
sketch6.addConstraint(Sketcher.Constraint("Coincident", 3, 2, 0, 1))
sketch6.addConstraint(Sketcher.Constraint("Vertical", 0))
sketch6.addConstraint(Sketcher.Constraint("Horizontal", 1))
sketch6.addConstraint(Sketcher.Constraint("Vertical", 2))
sketch6.addConstraint(Sketcher.Constraint("Horizontal", 3))
sketch6.addConstraint(Sketcher.Constraint("Symmetric", 0, 2, 2, 2, -1, 1))
sketch6.addConstraint(Sketcher.Constraint("DistanceX", 1, 1, 1, 2, Q("18.8 mm")))
sketch6.addConstraint(Sketcher.Constraint("DistanceY", 0, 2, 0, 1, Q("26.5 mm")))
pocket3 = doc.addObject("PartDesign::Pocket", "Pocket002")
body3.addObject(pocket3)
pocket3.Profile = sketch6
pocket3.Length = 1
pocket3.Reversed = True
doc.recompute()

boolean2 = doc.addObject("PartDesign::Boolean", "Boolean001")
body3.addObject(boolean2)
boolean2.Type = "Cut"
boolean2.addObjects([body2])

doc.recompute()
